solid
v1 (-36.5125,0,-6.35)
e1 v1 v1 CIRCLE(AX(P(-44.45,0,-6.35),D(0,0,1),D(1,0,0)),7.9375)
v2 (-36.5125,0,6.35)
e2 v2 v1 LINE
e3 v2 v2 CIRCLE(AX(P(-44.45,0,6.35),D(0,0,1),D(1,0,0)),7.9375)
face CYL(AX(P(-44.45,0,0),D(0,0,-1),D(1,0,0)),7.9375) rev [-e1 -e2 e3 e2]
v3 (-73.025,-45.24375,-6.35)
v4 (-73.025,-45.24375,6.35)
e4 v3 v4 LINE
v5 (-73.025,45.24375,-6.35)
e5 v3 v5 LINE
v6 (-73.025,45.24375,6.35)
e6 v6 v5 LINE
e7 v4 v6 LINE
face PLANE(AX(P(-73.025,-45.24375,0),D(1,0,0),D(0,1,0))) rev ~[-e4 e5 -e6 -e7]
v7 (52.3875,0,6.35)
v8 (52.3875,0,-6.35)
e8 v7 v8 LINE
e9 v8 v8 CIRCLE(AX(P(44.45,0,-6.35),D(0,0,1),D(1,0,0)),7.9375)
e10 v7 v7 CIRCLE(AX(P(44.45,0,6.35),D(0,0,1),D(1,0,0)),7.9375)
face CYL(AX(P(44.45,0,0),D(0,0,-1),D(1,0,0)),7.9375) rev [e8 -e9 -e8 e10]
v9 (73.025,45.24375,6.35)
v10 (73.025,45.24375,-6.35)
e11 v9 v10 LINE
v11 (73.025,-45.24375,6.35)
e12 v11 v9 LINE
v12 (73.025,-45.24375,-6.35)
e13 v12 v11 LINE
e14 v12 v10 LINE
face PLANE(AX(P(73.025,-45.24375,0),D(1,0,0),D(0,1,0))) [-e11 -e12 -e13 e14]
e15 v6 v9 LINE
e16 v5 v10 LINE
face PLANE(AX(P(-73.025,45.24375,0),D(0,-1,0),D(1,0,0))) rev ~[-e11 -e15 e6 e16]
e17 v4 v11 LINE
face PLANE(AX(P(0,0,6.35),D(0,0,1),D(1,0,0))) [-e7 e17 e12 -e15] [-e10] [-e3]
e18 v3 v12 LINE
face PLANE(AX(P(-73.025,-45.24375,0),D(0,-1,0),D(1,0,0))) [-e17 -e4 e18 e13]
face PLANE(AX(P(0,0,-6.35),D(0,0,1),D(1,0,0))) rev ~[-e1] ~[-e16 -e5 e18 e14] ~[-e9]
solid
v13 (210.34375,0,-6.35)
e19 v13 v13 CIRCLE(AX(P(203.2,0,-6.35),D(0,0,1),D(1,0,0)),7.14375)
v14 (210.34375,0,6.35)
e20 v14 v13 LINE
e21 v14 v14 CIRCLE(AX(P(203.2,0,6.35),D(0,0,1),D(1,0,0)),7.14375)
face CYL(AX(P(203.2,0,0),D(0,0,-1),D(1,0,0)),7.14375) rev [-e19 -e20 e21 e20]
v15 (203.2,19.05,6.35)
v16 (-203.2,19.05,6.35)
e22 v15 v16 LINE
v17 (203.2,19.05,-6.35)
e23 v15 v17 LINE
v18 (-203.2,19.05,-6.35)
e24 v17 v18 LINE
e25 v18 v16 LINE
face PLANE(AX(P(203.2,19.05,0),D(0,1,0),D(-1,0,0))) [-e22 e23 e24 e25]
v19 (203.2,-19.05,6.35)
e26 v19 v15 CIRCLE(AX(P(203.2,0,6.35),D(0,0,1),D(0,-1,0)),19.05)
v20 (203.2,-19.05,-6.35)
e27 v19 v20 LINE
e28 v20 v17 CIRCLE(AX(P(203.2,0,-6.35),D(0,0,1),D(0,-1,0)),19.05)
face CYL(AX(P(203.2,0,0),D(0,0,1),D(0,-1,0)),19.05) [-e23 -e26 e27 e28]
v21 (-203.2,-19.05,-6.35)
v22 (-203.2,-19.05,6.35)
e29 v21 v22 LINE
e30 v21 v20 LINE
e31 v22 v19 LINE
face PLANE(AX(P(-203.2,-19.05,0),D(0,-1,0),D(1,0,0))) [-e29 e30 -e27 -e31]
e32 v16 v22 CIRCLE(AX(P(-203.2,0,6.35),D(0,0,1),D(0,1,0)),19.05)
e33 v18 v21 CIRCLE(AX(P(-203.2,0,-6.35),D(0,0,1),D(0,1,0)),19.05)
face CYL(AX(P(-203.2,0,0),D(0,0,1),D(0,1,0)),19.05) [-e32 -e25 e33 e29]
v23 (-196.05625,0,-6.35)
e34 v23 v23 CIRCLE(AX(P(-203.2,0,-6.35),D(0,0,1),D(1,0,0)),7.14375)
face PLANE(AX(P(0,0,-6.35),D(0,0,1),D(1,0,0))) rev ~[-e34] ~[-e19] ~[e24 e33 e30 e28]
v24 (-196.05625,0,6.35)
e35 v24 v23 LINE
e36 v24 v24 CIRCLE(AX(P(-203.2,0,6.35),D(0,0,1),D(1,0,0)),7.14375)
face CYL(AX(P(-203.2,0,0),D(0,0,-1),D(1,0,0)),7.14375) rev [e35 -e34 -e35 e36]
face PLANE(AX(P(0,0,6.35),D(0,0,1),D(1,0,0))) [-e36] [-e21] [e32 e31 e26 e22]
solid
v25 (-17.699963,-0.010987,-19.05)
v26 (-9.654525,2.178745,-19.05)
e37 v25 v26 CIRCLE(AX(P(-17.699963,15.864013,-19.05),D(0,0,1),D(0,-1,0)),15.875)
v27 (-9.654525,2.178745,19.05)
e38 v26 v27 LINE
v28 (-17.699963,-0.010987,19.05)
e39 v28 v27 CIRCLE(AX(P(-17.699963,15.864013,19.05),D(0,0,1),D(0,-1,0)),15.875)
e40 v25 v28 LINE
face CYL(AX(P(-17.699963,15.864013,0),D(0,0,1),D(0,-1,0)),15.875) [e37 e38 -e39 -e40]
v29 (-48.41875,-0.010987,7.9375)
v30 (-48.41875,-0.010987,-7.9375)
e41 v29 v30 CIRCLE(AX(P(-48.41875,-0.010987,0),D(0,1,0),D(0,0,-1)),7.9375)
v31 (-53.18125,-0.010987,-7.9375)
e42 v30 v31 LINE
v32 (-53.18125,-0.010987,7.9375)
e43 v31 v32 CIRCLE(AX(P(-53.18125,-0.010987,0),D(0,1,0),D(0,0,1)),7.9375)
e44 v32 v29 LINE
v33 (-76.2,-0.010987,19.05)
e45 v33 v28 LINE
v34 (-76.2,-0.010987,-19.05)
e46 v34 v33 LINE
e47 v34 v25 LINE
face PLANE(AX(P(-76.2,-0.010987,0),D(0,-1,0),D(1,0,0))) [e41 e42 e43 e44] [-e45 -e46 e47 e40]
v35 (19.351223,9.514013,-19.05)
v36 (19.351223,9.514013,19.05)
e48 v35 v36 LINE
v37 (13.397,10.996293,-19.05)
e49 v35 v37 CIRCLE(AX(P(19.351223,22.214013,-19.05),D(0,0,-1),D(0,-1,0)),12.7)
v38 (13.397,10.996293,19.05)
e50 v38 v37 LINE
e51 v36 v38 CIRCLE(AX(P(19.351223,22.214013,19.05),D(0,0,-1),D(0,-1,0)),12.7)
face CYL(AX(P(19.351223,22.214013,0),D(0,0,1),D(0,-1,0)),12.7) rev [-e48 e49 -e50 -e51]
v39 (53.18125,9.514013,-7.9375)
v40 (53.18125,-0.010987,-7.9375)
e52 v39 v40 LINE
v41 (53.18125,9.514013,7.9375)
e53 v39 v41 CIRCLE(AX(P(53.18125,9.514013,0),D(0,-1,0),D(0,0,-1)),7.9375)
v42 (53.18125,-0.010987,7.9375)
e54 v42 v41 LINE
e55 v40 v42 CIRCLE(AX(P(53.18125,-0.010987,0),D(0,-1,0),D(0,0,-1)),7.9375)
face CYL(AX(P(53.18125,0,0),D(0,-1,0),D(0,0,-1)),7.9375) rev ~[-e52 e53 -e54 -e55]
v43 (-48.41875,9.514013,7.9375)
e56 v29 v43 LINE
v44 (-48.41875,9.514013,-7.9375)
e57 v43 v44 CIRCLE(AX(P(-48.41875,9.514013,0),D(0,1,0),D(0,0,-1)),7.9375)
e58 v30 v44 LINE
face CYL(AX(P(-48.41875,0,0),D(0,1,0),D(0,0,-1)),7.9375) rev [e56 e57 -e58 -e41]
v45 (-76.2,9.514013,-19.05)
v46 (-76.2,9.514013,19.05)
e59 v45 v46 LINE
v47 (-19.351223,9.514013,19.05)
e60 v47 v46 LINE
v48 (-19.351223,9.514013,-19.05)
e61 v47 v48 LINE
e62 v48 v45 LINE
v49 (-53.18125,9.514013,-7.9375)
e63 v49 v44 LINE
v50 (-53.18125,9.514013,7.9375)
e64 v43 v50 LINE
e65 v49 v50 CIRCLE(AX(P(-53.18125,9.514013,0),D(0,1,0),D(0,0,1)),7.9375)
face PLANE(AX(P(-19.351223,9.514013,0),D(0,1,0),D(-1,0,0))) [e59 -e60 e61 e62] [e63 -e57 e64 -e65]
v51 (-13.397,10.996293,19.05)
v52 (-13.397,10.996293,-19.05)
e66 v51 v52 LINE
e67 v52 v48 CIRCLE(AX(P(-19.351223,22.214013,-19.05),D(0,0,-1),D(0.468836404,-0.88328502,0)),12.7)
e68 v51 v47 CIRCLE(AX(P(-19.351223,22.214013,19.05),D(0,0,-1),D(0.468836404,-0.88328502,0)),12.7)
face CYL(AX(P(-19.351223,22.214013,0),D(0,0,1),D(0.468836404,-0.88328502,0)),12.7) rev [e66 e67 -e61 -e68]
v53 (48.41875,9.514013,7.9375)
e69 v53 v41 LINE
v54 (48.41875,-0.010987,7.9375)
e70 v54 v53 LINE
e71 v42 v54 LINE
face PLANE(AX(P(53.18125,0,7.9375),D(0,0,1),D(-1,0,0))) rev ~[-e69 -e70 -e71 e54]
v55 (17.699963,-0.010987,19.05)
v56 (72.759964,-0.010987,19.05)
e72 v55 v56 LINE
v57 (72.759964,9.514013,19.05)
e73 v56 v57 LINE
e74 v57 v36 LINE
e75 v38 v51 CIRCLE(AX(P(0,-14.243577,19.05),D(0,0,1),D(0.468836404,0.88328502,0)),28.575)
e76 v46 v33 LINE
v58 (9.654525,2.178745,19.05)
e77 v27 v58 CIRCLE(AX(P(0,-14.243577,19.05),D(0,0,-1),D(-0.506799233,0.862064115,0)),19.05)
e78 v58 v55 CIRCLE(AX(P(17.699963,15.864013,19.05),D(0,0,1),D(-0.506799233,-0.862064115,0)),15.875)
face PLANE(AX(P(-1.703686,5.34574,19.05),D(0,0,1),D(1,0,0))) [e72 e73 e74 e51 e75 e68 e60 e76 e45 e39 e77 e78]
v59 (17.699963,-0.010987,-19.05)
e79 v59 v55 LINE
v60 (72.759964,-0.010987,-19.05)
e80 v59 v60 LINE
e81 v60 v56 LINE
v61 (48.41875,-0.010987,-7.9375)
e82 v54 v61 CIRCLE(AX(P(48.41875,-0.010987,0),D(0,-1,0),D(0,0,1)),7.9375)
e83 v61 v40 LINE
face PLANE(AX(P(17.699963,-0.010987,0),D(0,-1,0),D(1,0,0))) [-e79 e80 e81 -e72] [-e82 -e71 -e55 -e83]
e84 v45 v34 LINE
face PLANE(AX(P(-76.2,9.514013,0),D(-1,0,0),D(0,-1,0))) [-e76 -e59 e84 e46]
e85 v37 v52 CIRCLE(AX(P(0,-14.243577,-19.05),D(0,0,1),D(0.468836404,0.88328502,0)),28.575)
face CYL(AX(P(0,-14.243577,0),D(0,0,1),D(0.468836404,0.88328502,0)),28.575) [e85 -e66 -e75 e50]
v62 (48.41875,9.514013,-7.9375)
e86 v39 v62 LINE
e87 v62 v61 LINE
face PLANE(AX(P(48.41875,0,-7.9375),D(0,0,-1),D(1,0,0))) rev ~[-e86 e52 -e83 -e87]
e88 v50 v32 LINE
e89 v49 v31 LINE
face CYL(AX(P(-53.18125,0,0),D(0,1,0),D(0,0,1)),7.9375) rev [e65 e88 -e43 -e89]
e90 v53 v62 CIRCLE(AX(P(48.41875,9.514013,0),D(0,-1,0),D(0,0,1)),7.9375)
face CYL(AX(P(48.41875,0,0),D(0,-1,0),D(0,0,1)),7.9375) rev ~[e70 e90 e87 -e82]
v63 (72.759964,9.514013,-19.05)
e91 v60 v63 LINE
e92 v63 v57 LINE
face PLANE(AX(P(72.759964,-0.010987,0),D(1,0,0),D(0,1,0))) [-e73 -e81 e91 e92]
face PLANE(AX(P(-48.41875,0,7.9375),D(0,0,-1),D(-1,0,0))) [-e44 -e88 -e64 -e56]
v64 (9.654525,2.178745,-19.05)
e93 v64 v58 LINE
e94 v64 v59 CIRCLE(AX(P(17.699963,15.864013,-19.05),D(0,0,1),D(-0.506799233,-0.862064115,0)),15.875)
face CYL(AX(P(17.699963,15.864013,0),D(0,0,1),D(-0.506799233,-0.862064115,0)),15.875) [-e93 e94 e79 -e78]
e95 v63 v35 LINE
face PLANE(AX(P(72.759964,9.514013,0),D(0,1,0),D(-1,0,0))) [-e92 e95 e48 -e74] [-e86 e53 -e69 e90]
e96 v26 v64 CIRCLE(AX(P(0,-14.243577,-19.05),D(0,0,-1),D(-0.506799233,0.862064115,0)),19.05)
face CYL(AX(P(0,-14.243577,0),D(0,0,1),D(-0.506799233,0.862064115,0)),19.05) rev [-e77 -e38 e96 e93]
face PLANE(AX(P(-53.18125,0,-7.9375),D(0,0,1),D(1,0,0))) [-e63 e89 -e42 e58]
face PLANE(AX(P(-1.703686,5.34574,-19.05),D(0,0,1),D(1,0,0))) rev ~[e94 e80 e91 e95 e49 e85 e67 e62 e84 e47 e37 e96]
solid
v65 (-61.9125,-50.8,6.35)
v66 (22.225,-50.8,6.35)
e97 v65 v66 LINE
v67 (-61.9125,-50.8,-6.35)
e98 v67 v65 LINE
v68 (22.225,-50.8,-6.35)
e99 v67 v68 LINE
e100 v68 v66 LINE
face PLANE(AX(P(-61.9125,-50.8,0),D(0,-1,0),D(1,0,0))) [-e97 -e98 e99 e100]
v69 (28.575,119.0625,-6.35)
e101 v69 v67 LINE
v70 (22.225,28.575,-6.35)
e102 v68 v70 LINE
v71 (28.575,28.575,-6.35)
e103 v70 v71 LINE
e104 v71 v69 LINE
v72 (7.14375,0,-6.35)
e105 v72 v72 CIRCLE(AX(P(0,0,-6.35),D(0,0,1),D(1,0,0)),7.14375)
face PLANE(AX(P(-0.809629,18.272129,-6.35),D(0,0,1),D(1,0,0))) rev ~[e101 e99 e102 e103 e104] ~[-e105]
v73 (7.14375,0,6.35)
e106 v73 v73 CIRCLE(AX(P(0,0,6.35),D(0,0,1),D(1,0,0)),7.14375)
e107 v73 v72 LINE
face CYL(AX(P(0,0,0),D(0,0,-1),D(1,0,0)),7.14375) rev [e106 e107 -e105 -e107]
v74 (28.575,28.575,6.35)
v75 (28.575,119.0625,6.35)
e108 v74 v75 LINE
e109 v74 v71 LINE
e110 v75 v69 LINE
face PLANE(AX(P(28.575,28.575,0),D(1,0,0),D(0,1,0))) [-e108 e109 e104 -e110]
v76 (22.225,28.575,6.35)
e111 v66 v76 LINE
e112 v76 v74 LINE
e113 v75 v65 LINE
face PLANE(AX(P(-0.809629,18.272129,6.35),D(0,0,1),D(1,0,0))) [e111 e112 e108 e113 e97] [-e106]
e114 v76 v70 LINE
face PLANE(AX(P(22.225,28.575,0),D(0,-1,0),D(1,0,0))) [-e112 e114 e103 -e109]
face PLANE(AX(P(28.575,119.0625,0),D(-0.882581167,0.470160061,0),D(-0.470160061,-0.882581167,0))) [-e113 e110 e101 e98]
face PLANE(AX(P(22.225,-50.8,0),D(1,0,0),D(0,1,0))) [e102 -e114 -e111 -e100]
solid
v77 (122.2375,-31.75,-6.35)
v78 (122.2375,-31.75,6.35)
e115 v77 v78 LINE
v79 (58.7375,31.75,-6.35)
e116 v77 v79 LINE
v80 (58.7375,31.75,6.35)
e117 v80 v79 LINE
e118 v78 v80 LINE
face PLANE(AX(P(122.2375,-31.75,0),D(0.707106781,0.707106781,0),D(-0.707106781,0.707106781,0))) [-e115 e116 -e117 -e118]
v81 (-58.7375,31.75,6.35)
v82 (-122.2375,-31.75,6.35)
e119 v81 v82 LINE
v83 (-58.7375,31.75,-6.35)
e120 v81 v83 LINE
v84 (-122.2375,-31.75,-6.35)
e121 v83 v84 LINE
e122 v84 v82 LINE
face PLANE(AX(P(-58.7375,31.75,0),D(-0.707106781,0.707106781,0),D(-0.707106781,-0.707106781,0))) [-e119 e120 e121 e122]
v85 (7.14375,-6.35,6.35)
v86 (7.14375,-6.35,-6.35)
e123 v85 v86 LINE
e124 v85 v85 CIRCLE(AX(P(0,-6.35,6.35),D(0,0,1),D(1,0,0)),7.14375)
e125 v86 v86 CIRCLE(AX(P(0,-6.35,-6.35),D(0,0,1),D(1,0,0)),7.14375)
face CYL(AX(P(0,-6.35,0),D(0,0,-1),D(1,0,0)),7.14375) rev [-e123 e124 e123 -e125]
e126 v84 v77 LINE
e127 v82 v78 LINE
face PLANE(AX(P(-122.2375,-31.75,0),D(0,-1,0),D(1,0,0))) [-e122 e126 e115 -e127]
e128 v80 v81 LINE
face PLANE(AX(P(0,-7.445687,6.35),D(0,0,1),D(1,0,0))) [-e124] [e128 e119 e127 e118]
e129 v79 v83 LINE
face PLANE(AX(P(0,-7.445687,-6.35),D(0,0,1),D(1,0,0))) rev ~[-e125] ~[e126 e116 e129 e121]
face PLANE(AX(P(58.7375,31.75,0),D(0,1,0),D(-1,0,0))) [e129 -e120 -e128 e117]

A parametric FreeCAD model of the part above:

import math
import FreeCAD as App
import Part
import Sketcher
Q = App.Units.Quantity


def add_polygon(sketch, points):
    """Adds a closed chain of lines whose ends are joined by coincident constraints."""
    first, n = sketch.GeometryCount, len(points)
    for a, b in zip(points, points[1:] + points[:1]):
        sketch.addGeometry(Part.LineSegment(App.Vector(*a, 0), App.Vector(*b, 0)), False)
    for i in range(n):
        sketch.addConstraint(Sketcher.Constraint("Coincident", first + i, 2, first + (i + 1) % n, 1))

doc = App.newDocument("Part")
body = doc.addObject("PartDesign::Body", "Body")

sketch1 = doc.addObject("Sketcher::SketchObject", "Sketch")
body.addObject(sketch1)
sketch1.AttachmentSupport = (doc.XY_Plane, [""])
sketch1.MapMode = "FlatFace"
add_polygon(sketch1, [(-73, 45), (-73, -45), (73, -45), (73, 45)])
sketch1.addGeometry(Part.Circle(App.Vector(-44, 0, 0), App.Vector(0, 0, 1), 8), False)
sketch1.addGeometry(Part.Circle(App.Vector(44, 0, 0), App.Vector(0, 0, 1), 8), False)
sketch1.addConstraint([
    Sketcher.Constraint("Vertical", 0),
    Sketcher.Constraint("Horizontal", 1),
    Sketcher.Constraint("Vertical", 2),
    Sketcher.Constraint("Horizontal", 3),
    Sketcher.Constraint("Equal", 4, 5),
    Sketcher.Constraint("Symmetric", 4, 3, 5, 3, -1, 1),
    Sketcher.Constraint("Symmetric", 0, 2, 2, 2, -1, 1),
    Sketcher.Constraint("PointOnObject", 4, 3, -1),
    Sketcher.Constraint("Diameter", 4, Q("0.625 in")),
    Sketcher.Constraint("DistanceX", 1, 1, 1, 2, Q("5.75 in")),
    Sketcher.Constraint("DistanceX", 4, 3, 5, 3, Q("3.5 in")),
    Sketcher.Constraint("DistanceY", 0, 2, 0, 1, Q("3.5625 in")),
])
pad1 = doc.addObject("PartDesign::Pad", "Pad")
body.addObject(pad1)
pad1.Profile = sketch1
pad1.Length = Q("0.5 in")
pad1.Midplane = True
body2 = doc.addObject("PartDesign::Body", "Body001")

sketch2 = doc.addObject("Sketcher::SketchObject", "Sketch001")
body2.addObject(sketch2)
sketch2.AttachmentSupport = (doc.getObject("XY_Plane001"), [""])
sketch2.MapMode = "FlatFace"
add_polygon(sketch2, [(-59, 32), (-122, -32), (122, -32), (59, 32)])
sketch2.addGeometry(Part.Circle(App.Vector(0, -6, 0), App.Vector(0, 0, 1), 7), False)
sketch2.addConstraint([
    Sketcher.Constraint("Horizontal", 1),
    Sketcher.Constraint("Horizontal", 3),
    Sketcher.Constraint("PointOnObject", 4, 3, -2),
    Sketcher.Constraint("Perpendicular", 0, 2),
    Sketcher.Constraint("Equal", 0, 2),
    Sketcher.Constraint("Diameter", 4, Q("0.5625 in")),
    Sketcher.Constraint("DistanceY", 0, 2, 4, 3, Q("1 in")),
    Sketcher.Constraint("DistanceY", 4, 3, 2, 2, Q("1.5 in")),
    Sketcher.Constraint("DistanceX", 1, 1, 1, 2, Q("9.625 in")),
    Sketcher.Constraint("DistanceY", 4, 3, -1, 1, Q("0.25 in")),
    Sketcher.Constraint("DistanceX", 0, 2, -1, 1, Q("4.8125 in")),
])
pad2 = doc.addObject("PartDesign::Pad", "Pad001")
body2.addObject(pad2)
pad2.Profile = sketch2
pad2.Length = Q("0.5 in")
pad2.Midplane = True
body3 = doc.addObject("PartDesign::Body", "Body002")

sketch3 = doc.addObject("Sketcher::SketchObject", "Sketch002")
body3.addObject(sketch3)
sketch3.AttachmentSupport = (doc.getObject("XY_Plane002"), [""])
sketch3.MapMode = "FlatFace"
add_polygon(sketch3, [(29, 119), (-62, -51), (22, -51), (22, 29), (29, 29)])
sketch3.addGeometry(Part.Circle(App.Vector(0, 0, 0), App.Vector(0, 0, 1), 7), False)
sketch3.addConstraint([
    Sketcher.Constraint("Horizontal", 1),
    Sketcher.Constraint("Vertical", 2),
    Sketcher.Constraint("Horizontal", 3),
    Sketcher.Constraint("Vertical", 4),
    Sketcher.Constraint("Coincident", 5, 3, -1, 1),
    Sketcher.Constraint("Diameter", 5, Q("0.5625 in")),
    Sketcher.Constraint("DistanceY", 0, 2, -1, 1, Q("2 in")),
    Sketcher.Constraint("DistanceX", 3, 1, 3, 2, Q("0.25 in")),
    Sketcher.Constraint("DistanceX", 1, 1, 1, 2, Q("3.3125 in")),
    Sketcher.Constraint("DistanceY", 2, 1, 2, 2, Q("3.125 in")),
    Sketcher.Constraint("DistanceY", 4, 1, 4, 2, Q("3.5625 in")),
    Sketcher.Constraint("DistanceX", 0, 2, -1, 1, Q("2.4375 in")),
])
pad3 = doc.addObject("PartDesign::Pad", "Pad002")
body3.addObject(pad3)
pad3.Profile = sketch3
pad3.Length = Q("0.5 in")
pad3.Midplane = True
body4 = doc.addObject("PartDesign::Body", "Body003")

sketch4 = doc.addObject("Sketcher::SketchObject", "Sketch003")
body4.addObject(sketch4)
sketch4.AttachmentSupport = (doc.getObject("XY_Plane003"), [""])
sketch4.MapMode = "FlatFace"
sketch4.addGeometry([
    Part.LineSegment(App.Vector(203, 19, 0), App.Vector(-203, 19, 0)),
    Part.ArcOfCircle(Part.Circle(App.Vector(-203, 0, 0), App.Vector(0, 0, 1), 19), math.radians(90), math.radians(270)),
    Part.LineSegment(App.Vector(-203, -19, 0), App.Vector(203, -19, 0)),
    Part.ArcOfCircle(Part.Circle(App.Vector(203, 0, 0), App.Vector(0, 0, 1), 19), math.radians(-90), math.radians(90)),
    Part.Circle(App.Vector(-203, 0, 0), App.Vector(0, 0, 1), 7),
    Part.Circle(App.Vector(203, 0, 0), App.Vector(0, 0, 1), 7),
], False)
sketch4.addConstraint([
    Sketcher.Constraint("Tangent", 0, 2, 1, 1),
    Sketcher.Constraint("Tangent", 1, 2, 2, 1),
    Sketcher.Constraint("Tangent", 2, 2, 3, 1),
    Sketcher.Constraint("Tangent", 3, 2, 0, 1),
    Sketcher.Constraint("Horizontal", 0),
    Sketcher.Constraint("Horizontal", 2),
    Sketcher.Constraint("Coincident", 4, 3, 1, 3),
    Sketcher.Constraint("Coincident", 5, 3, 3, 3),
    Sketcher.Constraint("Equal", 4, 5),
    Sketcher.Constraint("Symmetric", 1, 3, 3, 3, -1, 1),
    Sketcher.Constraint("DistanceX", 0, 2, 0, 1, Q("16 in")),
    Sketcher.Constraint("Radius", 1, Q("0.75 in")),
    Sketcher.Constraint("Diameter", 4, Q("0.5625 in")),
])
pad4 = doc.addObject("PartDesign::Pad", "Pad003")
body4.addObject(pad4)
pad4.Profile = sketch4
pad4.Length = Q("0.5 in")
pad4.Midplane = True
body5 = doc.addObject("PartDesign::Body", "Body004")

sketch5 = doc.addObject("Sketcher::SketchObject", "Sketch004")
body5.addObject(sketch5)
sketch5.AttachmentSupport = (doc.getObject("XY_Plane004"), [""])
sketch5.MapMode = "FlatFace"
sketch5.addGeometry([
    Part.LineSegment(App.Vector(-19, 10, 0), App.Vector(-76, 10, 0)),
    Part.LineSegment(App.Vector(-76, 10, 0), App.Vector(-76, 0, 0)),
    Part.LineSegment(App.Vector(-76, 0, 0), App.Vector(-18, 0, 0)),
    Part.ArcOfCircle(Part.Circle(App.Vector(-18, 16, 0), App.Vector(0, 0, 1), 16), math.radians(-90), math.radians(-60)),
    Part.ArcOfCircle(Part.Circle(App.Vector(0, -14, 0), App.Vector(0, 0, 1), 19), math.radians(60), math.radians(120)),
    Part.ArcOfCircle(Part.Circle(App.Vector(18, 16, 0), App.Vector(0, 0, 1), 16), math.radians(-120), math.radians(-90)),
    Part.LineSegment(App.Vector(18, 0, 0), App.Vector(73, 0, 0)),
    Part.LineSegment(App.Vector(73, 0, 0), App.Vector(73, 10, 0)),
    Part.LineSegment(App.Vector(73, 10, 0), App.Vector(19, 10, 0)),
    Part.ArcOfCircle(Part.Circle(App.Vector(19, 22, 0), App.Vector(0, 0, 1), 13), math.radians(-118), math.radians(-90)),
    Part.ArcOfCircle(Part.Circle(App.Vector(0, -14, 0), App.Vector(0, 0, 1), 29), math.radians(62), math.radians(118)),
    Part.ArcOfCircle(Part.Circle(App.Vector(-19, 22, 0), App.Vector(0, 0, 1), 13), math.radians(-90), math.radians(-62)),
], False)
sketch5.addConstraint([
    Sketcher.Constraint("Coincident", 0, 2, 1, 1),
    Sketcher.Constraint("Coincident", 1, 2, 2, 1),
    Sketcher.Constraint("Tangent", 2, 2, 3, 1),
    Sketcher.Constraint("Tangent", 3, 2, 4, 2),
    Sketcher.Constraint("Tangent", 4, 1, 5, 1),
    Sketcher.Constraint("Tangent", 5, 2, 6, 1),
    Sketcher.Constraint("Coincident", 6, 2, 7, 1),
    Sketcher.Constraint("Coincident", 7, 2, 8, 1),
    Sketcher.Constraint("Tangent", 8, 2, 9, 2),
    Sketcher.Constraint("Tangent", 9, 1, 10, 1),
    Sketcher.Constraint("Tangent", 10, 2, 11, 2),
    Sketcher.Constraint("Tangent", 11, 1, 0, 1),
    Sketcher.Constraint("Horizontal", 0),
    Sketcher.Constraint("Vertical", 1),
    Sketcher.Constraint("Horizontal", 2),
    Sketcher.Constraint("Horizontal", 6),
    Sketcher.Constraint("Vertical", 7),
    Sketcher.Constraint("Horizontal", 8),
    Sketcher.Constraint("Coincident", 10, 3, 4, 3),
    Sketcher.Constraint("Equal", 3, 5),
    Sketcher.Constraint("Equal", 9, 11),
    Sketcher.Constraint("Symmetric", 3, 3, 5, 3, -2),
    Sketcher.Constraint("Horizontal", 9, 3, 11, 3),
    Sketcher.Constraint("Radius", 9, Q("0.5 in")),
    Sketcher.Constraint("Radius", 4, Q("0.75 in")),
    Sketcher.Constraint("DistanceX", 0, 2, -1, 1, Q("3 in")),
    Sketcher.Constraint("Radius", 3, Q("0.625 in")),
    Sketcher.Constraint("Radius", 10, Q("1.125 in")),
    Sketcher.Constraint("DistanceY", 1, 2, 1, 1, Q("0.375 in")),
    Sketcher.Constraint("DistanceX", 6, 1, 6, 2, 55.06),
    Sketcher.Constraint("DistanceX", 8, 2, 8, 1, 53.408741),
    Sketcher.Constraint("DistanceY", -1, 1, 3, 3, 15.864013),
])
pad5 = doc.addObject("PartDesign::Pad", "Pad004")
body5.addObject(pad5)
pad5.Profile = sketch5
pad5.Length = Q("1.5 in")
pad5.Midplane = True

sketch6 = doc.addObject("Sketcher::SketchObject", "Sketch005")
body5.addObject(sketch6)
sketch6.AttachmentSupport = (doc.getObject("XZ_Plane004"), [""])
sketch6.MapMode = "FlatFace"
sketch6.addGeometry([
    Part.LineSegment(App.Vector(-48.4, 7.9, 0), App.Vector(-53.2, 7.9, 0)),
    Part.ArcOfCircle(Part.Circle(App.Vector(-53.2, 0, 0), App.Vector(0, 0, 1), 7.9), math.radians(90), math.radians(270)),
    Part.LineSegment(App.Vector(-53.2, -7.9, 0), App.Vector(-48.4, -7.9, 0)),
    Part.ArcOfCircle(Part.Circle(App.Vector(-48.4, 0, 0), App.Vector(0, 0, 1), 7.9), math.radians(-90), math.radians(90)),
    Part.ArcOfCircle(Part.Circle(App.Vector(48.4, 0, 0), App.Vector(0, 0, 1), 7.9), math.radians(90), math.radians(270)),
    Part.LineSegment(App.Vector(48.4, -7.9, 0), App.Vector(53.2, -7.9, 0)),
    Part.ArcOfCircle(Part.Circle(App.Vector(53.2, 0, 0), App.Vector(0, 0, 1), 7.9), math.radians(-90), math.radians(90)),
    Part.LineSegment(App.Vector(53.2, 7.9, 0), App.Vector(48.4, 7.9, 0)),
], False)
sketch6.addConstraint([
    Sketcher.Constraint("Tangent", 0, 2, 1, 1),
    Sketcher.Constraint("Tangent", 1, 2, 2, 1),
    Sketcher.Constraint("Tangent", 2, 2, 3, 1),
    Sketcher.Constraint("Tangent", 3, 2, 0, 1),
    Sketcher.Constraint("Tangent", 4, 2, 5, 1),
    Sketcher.Constraint("Tangent", 5, 2, 6, 1),
    Sketcher.Constraint("Tangent", 6, 2, 7, 1),
    Sketcher.Constraint("Tangent", 7, 2, 4, 1),
    Sketcher.Constraint("Horizontal", 0),
    Sketcher.Constraint("Horizontal", 2),
    Sketcher.Constraint("Horizontal", 5),
    Sketcher.Constraint("Horizontal", 7),
    Sketcher.Constraint("Equal", 3, 4),
    Sketcher.Constraint("Symmetric", 3, 3, 4, 3, -1, 1),
    Sketcher.Constraint("Symmetric", 1, 3, 6, 3, -2),
    Sketcher.Constraint("Radius", 1, Q("0.3125 in")),
    Sketcher.Constraint("DistanceX", 1, 3, 4, 3, Q("4 in")),
    Sketcher.Constraint("DistanceX", 0, 2, 0, 1, Q("0.1875 in")),
])
pocket1 = doc.addObject("PartDesign::Pocket", "Pocket")
body5.addObject(pocket1)
pocket1.Profile = sketch6
pocket1.Length = Q("1 in")
pocket1.Midplane = True

doc.recompute()
